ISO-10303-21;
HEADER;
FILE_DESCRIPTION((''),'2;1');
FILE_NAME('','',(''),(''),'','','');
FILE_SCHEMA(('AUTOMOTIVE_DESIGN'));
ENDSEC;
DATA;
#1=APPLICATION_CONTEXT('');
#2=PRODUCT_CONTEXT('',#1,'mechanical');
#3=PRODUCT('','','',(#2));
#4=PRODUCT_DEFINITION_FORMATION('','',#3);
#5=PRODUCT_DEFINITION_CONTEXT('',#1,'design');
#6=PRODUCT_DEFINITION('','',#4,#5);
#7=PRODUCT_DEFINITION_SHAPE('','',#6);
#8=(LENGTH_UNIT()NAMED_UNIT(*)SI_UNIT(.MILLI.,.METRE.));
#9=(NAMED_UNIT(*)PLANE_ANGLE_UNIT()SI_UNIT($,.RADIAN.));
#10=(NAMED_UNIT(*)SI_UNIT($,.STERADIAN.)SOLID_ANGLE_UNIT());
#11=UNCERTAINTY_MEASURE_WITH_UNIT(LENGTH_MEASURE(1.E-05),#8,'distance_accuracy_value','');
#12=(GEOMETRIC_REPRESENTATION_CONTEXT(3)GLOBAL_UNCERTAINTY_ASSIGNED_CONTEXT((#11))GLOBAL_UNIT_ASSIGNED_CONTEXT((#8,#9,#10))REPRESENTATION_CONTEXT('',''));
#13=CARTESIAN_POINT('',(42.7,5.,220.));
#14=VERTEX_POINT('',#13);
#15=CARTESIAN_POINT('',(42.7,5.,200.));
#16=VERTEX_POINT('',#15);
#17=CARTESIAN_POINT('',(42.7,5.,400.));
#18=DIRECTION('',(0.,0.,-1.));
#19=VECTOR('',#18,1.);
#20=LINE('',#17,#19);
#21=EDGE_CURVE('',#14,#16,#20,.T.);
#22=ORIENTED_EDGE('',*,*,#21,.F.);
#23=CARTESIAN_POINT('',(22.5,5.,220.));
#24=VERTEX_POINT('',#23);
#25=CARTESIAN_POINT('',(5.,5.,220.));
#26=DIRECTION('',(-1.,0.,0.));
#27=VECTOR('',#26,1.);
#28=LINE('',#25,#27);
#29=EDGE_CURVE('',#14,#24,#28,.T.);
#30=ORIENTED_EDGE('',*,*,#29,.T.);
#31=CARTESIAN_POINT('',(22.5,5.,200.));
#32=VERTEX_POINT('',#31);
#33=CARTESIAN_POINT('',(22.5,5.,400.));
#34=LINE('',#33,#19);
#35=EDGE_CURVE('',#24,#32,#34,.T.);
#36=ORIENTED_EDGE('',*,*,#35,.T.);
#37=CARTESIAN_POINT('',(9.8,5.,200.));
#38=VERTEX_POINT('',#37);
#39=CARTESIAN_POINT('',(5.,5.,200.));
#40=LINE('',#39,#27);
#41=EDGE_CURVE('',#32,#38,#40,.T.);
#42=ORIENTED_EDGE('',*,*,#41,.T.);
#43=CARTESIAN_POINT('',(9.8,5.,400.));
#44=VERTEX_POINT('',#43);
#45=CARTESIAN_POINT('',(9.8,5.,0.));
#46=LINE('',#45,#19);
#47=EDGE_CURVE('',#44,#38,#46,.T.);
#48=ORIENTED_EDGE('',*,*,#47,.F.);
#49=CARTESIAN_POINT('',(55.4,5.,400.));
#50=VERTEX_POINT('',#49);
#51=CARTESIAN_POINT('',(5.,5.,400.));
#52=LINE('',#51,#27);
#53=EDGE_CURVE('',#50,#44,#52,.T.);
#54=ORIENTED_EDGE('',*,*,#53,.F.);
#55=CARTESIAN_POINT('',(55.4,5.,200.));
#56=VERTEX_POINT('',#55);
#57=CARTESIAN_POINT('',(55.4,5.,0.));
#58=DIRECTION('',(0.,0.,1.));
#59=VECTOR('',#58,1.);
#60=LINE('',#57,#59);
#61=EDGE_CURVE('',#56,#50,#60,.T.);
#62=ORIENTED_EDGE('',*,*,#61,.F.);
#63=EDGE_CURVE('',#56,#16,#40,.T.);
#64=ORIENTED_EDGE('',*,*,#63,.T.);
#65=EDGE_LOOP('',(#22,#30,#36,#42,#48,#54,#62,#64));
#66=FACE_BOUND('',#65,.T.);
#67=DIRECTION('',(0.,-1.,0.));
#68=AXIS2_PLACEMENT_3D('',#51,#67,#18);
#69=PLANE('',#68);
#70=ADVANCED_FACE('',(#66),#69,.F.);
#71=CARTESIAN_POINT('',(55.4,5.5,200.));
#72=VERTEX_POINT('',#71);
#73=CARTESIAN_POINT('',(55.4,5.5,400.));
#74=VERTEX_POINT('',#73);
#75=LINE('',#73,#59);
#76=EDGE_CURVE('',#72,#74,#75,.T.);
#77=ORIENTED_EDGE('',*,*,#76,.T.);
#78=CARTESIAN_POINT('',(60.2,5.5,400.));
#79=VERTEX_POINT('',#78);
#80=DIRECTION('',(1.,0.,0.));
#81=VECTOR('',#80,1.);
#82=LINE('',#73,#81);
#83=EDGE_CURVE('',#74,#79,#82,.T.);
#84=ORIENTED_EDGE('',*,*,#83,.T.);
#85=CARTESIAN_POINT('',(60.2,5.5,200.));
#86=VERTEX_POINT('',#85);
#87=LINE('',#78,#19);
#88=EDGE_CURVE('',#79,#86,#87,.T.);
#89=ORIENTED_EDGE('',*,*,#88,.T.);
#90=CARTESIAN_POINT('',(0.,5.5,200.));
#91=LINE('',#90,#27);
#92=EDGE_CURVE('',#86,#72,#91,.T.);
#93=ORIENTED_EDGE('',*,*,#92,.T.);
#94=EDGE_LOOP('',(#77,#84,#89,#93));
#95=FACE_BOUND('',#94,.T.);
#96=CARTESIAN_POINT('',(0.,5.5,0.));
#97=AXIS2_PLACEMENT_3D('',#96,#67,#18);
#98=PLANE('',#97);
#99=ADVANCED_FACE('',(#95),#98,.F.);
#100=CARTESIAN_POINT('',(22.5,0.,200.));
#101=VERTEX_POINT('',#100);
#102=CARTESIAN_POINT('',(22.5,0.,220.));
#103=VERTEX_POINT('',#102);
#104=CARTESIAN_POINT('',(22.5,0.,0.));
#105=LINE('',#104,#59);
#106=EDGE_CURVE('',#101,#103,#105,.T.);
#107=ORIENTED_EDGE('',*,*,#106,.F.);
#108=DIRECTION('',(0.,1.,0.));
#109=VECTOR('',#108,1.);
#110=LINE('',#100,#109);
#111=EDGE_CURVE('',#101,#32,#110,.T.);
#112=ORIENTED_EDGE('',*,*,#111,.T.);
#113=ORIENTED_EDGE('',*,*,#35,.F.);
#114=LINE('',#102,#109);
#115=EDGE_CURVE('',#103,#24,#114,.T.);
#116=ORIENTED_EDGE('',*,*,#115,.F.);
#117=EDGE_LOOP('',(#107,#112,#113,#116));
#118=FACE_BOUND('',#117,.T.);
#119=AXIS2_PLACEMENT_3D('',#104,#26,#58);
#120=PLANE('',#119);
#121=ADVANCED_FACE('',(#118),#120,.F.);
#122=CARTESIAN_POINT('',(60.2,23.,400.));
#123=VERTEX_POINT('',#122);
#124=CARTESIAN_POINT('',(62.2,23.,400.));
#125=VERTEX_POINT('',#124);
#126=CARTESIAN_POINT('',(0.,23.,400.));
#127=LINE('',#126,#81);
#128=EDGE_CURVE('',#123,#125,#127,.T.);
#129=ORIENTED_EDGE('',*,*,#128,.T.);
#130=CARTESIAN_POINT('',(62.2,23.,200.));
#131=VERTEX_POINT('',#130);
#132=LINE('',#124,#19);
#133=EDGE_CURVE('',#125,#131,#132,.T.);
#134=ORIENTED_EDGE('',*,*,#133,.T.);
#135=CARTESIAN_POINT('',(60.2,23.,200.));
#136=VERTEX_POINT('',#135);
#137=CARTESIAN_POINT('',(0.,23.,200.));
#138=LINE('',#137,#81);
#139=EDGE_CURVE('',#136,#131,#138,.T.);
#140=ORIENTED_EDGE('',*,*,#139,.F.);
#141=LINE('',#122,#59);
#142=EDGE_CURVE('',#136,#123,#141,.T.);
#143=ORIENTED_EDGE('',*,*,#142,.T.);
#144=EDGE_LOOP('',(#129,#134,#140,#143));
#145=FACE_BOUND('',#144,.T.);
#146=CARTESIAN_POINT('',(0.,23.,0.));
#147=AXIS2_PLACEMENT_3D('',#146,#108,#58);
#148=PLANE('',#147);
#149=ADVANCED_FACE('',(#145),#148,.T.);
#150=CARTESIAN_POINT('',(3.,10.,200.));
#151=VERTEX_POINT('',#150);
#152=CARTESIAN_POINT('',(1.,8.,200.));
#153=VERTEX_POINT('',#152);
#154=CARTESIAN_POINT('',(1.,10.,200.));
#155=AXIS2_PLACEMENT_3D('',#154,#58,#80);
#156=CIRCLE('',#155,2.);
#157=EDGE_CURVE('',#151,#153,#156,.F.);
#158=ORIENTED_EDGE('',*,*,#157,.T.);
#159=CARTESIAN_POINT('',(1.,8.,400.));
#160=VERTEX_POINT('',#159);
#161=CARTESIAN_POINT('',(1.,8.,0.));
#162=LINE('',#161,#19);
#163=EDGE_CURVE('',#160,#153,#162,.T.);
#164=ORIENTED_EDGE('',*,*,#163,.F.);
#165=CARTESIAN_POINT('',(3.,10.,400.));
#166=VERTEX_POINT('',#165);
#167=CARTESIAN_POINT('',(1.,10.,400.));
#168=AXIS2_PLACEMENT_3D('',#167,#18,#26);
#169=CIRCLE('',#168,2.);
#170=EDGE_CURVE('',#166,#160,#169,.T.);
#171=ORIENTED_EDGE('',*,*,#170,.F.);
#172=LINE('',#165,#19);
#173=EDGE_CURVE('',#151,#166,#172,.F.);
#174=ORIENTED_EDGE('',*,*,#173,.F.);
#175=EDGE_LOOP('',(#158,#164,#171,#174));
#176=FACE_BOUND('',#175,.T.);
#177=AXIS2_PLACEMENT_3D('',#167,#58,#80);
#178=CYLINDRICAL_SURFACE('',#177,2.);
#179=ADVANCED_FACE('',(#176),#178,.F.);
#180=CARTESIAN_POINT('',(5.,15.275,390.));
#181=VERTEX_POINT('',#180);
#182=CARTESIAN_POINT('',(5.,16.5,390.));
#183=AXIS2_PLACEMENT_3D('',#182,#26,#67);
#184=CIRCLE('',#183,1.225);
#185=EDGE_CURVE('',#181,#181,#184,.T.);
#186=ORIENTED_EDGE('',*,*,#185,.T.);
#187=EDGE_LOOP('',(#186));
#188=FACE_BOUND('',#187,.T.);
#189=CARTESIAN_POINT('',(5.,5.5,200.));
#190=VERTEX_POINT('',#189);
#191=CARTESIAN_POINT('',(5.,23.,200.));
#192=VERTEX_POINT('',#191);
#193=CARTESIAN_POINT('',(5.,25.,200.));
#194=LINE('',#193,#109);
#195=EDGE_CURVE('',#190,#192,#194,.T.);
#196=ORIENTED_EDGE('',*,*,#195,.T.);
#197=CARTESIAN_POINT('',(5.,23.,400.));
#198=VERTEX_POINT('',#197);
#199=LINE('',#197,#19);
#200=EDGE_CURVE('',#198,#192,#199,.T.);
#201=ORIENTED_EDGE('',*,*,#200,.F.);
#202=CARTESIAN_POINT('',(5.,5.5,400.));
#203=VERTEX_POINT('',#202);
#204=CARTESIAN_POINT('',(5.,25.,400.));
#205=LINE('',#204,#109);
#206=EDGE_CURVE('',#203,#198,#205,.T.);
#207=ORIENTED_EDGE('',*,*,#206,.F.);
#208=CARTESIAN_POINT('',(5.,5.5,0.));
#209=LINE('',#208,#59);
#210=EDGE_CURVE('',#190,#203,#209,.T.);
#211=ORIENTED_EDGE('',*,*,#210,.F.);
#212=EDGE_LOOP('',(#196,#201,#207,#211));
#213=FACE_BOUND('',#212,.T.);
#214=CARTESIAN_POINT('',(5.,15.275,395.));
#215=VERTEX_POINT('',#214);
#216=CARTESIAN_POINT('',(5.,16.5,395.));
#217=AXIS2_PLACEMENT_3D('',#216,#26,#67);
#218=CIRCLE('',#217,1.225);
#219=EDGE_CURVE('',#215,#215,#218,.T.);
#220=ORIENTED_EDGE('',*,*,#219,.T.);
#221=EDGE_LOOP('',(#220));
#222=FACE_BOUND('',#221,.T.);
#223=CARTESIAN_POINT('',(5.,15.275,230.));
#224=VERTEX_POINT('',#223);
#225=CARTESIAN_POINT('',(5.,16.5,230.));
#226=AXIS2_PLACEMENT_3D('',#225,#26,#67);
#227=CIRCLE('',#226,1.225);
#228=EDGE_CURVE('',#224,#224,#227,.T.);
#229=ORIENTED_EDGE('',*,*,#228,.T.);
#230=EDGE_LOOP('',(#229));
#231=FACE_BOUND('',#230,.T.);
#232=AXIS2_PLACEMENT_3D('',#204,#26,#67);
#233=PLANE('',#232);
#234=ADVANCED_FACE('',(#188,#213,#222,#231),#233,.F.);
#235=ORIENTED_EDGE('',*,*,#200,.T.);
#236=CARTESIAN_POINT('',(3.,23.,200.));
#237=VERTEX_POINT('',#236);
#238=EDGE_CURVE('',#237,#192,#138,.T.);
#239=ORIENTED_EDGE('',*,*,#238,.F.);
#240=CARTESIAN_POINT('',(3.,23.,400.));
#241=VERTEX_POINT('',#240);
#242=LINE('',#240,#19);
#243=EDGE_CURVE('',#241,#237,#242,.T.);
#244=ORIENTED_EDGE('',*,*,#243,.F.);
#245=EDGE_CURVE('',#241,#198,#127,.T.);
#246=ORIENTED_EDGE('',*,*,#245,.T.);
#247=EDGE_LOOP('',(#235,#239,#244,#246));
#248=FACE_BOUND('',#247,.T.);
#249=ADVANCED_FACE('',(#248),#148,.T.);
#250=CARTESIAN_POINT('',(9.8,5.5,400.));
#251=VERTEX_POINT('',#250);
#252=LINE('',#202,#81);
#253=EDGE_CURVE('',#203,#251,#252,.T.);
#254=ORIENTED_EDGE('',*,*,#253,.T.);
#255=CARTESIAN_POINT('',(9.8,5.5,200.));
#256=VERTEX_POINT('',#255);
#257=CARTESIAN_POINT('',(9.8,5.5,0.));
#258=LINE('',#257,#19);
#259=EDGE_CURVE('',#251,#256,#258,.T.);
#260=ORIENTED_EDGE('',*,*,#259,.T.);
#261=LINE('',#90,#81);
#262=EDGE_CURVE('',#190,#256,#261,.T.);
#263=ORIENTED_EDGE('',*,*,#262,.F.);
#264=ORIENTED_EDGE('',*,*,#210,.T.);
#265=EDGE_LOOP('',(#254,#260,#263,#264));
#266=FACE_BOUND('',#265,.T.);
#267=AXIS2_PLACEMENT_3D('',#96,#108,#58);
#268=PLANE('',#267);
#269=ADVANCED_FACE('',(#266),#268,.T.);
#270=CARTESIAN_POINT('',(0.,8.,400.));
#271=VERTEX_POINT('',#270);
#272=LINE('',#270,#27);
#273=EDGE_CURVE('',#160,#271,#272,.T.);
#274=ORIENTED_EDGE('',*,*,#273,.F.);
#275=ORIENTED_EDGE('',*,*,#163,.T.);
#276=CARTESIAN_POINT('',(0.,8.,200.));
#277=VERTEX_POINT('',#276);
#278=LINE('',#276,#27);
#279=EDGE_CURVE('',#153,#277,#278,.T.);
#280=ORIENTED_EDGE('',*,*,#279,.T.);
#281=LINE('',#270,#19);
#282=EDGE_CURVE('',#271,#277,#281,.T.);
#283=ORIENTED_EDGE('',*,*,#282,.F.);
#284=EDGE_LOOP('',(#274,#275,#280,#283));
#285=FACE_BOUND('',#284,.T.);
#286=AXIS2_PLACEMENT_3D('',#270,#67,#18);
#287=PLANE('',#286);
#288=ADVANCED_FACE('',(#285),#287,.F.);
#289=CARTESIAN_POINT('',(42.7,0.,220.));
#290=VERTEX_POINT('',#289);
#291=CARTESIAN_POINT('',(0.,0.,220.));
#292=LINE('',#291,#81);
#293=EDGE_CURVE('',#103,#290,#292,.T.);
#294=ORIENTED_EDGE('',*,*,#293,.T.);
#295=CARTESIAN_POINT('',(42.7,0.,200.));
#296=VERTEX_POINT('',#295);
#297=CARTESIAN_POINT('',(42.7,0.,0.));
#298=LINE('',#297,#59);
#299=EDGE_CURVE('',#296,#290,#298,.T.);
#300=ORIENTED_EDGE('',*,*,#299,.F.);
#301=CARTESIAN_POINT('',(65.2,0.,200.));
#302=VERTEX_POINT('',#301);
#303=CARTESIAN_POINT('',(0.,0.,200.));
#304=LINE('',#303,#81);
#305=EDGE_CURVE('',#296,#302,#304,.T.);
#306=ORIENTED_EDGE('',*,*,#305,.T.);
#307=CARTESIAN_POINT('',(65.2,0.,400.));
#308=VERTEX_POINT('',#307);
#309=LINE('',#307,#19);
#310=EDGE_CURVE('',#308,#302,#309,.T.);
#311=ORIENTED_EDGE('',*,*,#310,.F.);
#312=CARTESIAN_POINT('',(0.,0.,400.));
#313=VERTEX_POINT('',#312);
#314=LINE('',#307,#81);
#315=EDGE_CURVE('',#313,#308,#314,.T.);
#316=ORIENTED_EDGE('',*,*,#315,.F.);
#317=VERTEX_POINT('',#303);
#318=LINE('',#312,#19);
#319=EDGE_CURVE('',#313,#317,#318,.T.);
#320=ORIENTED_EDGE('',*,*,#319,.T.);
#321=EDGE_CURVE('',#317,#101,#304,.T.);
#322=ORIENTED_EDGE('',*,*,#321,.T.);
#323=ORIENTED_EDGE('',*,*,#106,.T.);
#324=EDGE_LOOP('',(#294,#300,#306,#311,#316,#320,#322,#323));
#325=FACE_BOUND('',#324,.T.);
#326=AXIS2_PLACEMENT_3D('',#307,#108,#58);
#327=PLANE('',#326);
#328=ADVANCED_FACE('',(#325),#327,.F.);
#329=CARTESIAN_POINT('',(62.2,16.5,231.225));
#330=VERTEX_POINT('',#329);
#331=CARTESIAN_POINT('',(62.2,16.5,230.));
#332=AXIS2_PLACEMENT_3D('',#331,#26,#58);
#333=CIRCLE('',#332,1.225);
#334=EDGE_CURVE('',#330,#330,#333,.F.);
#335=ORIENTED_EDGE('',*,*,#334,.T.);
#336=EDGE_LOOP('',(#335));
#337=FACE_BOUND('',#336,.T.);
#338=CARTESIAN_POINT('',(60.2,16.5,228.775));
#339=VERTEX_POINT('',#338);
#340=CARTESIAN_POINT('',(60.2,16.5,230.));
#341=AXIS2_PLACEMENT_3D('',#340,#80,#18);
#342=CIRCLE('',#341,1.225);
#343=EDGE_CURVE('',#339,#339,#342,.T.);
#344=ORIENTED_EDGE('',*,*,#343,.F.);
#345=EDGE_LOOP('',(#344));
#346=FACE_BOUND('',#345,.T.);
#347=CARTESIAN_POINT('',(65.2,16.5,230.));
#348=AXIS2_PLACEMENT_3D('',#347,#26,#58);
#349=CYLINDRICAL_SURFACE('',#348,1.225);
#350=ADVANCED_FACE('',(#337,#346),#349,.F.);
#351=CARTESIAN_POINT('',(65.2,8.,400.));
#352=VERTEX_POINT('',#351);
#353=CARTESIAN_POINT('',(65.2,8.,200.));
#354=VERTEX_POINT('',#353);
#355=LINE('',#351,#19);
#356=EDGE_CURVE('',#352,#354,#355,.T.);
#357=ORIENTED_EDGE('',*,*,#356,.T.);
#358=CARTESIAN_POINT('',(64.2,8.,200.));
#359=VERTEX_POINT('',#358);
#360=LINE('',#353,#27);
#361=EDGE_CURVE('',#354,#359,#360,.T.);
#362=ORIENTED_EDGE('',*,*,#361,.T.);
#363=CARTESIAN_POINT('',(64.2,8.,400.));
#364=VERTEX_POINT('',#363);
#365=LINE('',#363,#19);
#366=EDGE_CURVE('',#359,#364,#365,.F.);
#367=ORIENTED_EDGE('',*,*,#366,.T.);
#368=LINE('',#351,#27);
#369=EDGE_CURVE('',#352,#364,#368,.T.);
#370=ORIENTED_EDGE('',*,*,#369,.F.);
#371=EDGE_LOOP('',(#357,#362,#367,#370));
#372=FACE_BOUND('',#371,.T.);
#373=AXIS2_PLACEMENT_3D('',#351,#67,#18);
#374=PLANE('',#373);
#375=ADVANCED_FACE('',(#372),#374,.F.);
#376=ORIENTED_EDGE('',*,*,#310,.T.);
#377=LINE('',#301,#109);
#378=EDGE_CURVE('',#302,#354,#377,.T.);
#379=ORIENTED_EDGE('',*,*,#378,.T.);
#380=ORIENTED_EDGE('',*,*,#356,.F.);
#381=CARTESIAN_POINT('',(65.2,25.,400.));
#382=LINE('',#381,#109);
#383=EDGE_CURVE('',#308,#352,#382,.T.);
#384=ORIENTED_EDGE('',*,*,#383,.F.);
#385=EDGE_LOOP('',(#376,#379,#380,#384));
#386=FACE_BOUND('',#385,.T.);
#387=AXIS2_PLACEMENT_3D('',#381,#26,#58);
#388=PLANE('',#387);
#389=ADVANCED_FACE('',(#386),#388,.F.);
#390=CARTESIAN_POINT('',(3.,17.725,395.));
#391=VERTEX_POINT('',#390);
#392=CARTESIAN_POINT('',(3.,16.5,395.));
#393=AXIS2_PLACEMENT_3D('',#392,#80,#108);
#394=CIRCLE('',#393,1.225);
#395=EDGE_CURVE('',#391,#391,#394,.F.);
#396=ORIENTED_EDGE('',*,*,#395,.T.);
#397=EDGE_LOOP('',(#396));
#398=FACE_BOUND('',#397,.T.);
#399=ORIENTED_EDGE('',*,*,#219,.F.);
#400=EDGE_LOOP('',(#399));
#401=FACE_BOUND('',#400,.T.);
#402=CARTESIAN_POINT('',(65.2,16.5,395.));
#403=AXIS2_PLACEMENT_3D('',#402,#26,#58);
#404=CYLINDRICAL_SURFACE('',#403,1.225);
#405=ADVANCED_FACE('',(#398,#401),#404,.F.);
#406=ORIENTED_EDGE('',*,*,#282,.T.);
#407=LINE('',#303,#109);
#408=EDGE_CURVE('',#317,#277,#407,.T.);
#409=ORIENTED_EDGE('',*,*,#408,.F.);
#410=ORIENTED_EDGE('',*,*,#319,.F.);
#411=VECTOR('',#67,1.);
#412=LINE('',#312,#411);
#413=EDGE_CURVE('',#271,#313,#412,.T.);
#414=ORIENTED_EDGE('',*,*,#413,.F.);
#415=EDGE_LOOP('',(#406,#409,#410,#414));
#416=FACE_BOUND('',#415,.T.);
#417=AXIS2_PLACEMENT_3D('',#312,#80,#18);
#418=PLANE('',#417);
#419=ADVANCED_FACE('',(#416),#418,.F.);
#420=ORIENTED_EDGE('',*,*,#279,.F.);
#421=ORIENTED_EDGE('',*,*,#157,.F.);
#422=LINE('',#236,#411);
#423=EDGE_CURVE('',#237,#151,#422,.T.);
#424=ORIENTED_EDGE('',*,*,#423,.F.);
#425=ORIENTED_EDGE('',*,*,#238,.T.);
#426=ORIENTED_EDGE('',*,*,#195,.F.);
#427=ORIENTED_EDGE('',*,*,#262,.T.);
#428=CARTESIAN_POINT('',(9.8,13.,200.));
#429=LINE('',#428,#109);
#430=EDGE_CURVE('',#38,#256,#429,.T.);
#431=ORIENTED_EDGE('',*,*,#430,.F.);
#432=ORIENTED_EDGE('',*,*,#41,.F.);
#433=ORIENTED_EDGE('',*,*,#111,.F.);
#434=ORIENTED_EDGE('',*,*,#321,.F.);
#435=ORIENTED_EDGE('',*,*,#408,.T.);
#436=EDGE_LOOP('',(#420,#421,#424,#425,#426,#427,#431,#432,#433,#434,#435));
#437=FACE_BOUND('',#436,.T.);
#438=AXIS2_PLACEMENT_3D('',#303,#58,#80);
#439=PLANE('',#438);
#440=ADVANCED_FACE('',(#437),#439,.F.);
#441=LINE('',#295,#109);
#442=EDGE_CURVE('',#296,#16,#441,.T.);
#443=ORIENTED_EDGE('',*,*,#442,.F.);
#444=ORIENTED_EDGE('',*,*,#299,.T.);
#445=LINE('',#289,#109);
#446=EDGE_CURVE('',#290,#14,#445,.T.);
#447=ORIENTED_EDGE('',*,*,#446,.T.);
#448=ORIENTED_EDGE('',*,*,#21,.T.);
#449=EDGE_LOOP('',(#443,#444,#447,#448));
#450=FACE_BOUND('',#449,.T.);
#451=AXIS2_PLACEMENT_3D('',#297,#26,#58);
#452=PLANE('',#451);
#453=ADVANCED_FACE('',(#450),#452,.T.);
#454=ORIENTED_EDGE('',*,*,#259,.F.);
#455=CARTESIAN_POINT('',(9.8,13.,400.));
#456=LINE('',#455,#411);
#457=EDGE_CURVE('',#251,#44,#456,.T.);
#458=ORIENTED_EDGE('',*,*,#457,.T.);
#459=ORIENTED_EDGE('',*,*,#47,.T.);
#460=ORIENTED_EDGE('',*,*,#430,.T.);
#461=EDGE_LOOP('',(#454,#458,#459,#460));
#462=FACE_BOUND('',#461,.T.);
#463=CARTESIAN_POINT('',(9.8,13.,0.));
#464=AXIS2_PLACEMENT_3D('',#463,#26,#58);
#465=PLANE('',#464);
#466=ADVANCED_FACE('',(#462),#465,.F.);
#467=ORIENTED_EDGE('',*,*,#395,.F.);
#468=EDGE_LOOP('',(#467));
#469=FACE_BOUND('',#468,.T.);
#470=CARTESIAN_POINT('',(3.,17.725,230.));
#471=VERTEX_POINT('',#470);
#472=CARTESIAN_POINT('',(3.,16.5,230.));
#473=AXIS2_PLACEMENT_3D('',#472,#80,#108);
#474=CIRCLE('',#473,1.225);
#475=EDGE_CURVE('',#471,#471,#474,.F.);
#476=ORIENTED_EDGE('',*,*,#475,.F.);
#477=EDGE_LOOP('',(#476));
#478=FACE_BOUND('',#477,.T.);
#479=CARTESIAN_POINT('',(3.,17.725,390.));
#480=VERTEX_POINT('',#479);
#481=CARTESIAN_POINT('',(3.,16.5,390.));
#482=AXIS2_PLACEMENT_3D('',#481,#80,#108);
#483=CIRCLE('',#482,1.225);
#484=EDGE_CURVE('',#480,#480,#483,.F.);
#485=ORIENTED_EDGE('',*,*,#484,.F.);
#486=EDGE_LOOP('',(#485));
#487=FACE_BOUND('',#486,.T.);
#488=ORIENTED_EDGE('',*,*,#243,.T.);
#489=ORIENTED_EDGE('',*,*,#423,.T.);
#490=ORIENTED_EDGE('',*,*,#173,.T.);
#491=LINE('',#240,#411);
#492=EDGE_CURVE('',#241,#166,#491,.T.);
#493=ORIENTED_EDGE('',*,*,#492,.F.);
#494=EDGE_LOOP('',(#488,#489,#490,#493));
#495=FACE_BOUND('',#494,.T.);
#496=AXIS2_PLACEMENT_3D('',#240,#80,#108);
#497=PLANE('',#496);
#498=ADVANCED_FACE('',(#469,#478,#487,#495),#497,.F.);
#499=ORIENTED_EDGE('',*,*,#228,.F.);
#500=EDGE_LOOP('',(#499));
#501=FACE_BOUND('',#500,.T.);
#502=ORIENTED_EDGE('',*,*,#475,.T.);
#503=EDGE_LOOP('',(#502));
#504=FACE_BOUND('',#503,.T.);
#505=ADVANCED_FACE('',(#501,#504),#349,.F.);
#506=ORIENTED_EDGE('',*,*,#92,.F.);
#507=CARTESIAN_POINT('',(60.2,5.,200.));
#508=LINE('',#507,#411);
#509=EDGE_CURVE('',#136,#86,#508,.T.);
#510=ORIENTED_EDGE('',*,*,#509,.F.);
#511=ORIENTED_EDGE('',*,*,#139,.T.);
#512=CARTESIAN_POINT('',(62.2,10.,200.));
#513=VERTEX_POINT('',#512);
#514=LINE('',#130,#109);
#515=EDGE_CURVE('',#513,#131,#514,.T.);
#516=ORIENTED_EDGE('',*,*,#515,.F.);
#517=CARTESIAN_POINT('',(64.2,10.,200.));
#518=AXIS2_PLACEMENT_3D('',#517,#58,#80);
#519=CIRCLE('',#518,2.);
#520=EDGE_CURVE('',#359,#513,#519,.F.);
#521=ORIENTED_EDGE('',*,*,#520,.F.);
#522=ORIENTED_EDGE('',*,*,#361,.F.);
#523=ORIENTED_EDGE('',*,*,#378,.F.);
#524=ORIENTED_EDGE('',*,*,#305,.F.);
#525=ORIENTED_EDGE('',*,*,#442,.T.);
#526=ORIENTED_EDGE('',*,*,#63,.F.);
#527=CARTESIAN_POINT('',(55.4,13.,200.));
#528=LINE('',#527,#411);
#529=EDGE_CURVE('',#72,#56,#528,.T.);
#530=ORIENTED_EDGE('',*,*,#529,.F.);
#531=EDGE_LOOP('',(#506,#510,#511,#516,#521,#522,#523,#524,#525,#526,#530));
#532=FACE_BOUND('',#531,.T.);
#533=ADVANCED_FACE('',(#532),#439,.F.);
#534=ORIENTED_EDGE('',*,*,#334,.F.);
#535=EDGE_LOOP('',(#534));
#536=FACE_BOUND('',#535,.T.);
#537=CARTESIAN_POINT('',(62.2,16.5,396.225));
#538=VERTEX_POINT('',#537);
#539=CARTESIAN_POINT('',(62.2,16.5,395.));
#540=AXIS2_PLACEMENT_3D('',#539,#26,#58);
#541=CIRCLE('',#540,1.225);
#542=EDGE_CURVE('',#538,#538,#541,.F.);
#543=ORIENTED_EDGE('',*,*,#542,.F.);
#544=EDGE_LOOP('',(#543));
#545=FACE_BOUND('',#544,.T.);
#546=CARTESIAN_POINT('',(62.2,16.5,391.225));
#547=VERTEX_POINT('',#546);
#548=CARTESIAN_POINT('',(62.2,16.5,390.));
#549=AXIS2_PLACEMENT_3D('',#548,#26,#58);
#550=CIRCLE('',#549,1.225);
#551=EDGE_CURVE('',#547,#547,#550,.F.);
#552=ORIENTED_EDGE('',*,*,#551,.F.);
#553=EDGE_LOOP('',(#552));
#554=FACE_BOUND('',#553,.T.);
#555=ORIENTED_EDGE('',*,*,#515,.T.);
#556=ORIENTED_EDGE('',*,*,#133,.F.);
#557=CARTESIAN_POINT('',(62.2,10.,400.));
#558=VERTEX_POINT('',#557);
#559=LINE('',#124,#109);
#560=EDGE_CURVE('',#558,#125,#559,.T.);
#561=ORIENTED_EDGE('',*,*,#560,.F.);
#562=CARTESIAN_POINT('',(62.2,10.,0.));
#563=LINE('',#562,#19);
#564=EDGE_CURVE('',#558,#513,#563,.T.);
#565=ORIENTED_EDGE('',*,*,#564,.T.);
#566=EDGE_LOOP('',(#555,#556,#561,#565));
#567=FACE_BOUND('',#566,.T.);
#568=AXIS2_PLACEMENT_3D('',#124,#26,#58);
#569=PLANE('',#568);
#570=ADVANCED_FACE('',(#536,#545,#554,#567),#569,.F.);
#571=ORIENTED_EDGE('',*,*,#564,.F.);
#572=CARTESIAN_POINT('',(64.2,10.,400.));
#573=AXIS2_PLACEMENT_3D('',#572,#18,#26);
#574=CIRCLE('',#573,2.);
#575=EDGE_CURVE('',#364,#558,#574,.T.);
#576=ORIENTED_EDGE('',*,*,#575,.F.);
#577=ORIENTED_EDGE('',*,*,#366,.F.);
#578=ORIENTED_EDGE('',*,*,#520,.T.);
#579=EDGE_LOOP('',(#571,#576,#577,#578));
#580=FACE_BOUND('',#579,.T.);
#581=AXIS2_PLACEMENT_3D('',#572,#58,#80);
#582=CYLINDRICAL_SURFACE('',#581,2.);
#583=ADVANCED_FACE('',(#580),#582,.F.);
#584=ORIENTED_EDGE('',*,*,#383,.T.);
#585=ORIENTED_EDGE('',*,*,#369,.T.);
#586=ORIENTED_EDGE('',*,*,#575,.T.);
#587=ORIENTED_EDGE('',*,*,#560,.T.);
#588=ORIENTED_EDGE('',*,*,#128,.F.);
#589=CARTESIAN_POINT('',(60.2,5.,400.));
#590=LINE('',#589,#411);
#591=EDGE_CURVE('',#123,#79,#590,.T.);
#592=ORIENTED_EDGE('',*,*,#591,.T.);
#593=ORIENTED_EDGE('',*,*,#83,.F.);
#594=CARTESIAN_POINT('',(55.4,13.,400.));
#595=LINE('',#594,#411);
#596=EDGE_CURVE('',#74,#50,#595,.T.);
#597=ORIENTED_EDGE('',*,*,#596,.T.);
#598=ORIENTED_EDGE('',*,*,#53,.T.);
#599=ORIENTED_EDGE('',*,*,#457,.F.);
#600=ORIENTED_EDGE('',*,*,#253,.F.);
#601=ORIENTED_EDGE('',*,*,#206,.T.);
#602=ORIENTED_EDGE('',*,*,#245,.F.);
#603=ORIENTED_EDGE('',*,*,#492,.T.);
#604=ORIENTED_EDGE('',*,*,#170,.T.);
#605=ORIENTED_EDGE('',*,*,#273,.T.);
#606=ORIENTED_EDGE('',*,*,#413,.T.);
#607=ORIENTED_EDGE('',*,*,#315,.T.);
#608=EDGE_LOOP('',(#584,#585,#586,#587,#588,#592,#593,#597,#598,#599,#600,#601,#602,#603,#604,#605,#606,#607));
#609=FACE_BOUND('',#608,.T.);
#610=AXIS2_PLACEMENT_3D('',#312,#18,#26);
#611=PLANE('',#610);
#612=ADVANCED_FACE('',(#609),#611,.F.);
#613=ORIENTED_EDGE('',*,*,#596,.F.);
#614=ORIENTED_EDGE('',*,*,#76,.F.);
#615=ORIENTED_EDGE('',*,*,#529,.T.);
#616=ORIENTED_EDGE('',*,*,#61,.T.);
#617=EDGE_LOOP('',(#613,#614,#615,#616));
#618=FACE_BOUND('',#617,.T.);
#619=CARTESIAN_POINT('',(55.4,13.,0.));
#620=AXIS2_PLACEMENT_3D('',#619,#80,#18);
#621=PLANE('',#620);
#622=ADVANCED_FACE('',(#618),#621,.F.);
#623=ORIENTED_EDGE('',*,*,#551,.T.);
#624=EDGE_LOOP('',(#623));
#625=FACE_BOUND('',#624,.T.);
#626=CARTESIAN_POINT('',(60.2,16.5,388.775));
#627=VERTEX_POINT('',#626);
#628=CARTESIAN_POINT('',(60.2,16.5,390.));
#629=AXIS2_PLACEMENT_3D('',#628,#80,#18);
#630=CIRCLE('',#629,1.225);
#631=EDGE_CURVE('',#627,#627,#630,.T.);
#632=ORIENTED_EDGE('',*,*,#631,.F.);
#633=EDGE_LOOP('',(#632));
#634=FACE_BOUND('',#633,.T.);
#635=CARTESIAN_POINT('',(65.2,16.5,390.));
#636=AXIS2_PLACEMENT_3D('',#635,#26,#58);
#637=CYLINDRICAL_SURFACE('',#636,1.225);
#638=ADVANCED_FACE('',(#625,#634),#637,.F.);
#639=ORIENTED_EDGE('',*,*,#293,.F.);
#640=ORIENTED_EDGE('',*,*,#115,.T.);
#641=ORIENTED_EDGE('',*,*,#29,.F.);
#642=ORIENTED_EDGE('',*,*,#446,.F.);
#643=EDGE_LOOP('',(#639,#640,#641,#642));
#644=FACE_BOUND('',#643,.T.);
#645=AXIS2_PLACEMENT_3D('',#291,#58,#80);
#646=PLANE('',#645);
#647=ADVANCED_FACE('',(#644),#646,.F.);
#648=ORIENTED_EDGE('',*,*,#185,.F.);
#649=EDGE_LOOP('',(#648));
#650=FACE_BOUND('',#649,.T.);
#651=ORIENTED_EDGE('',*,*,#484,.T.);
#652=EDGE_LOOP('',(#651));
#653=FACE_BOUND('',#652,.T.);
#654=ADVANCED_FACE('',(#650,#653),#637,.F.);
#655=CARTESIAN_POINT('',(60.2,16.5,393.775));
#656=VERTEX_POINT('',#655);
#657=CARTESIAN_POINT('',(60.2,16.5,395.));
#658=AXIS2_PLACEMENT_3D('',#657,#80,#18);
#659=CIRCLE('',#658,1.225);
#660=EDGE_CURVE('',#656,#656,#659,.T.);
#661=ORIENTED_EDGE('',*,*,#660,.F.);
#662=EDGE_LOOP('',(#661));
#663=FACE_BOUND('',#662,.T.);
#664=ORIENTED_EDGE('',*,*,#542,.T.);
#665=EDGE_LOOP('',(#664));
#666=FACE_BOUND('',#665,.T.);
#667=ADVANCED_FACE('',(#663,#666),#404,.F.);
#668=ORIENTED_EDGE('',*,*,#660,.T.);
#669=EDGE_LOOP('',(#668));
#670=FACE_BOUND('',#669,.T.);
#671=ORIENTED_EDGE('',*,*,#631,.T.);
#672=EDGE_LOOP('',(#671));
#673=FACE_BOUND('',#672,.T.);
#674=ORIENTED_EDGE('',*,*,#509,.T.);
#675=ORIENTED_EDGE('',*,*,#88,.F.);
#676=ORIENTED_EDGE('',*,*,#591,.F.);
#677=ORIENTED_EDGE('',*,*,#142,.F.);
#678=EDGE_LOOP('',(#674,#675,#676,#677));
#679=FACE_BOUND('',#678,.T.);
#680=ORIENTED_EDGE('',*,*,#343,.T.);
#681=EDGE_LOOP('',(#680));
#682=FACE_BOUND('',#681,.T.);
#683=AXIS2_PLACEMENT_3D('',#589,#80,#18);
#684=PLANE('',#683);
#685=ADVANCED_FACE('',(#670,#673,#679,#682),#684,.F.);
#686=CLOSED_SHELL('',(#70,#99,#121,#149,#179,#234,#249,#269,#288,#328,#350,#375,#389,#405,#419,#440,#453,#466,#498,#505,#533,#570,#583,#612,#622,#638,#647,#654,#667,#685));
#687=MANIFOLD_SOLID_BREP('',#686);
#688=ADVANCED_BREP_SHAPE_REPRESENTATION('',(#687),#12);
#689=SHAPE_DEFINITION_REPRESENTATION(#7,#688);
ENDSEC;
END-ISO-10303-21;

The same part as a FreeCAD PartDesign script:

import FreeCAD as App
import Part
import Sketcher
from FreeCAD import Vector


def edges_at(feature, points):
    """Names of the edges that pass closest to the given points."""
    edges = feature.Shape.Edges
    near = lambda p: min(range(len(edges)), key=lambda i: edges[i].distToShape(Part.Vertex(*p))[0])
    return sorted({f"Edge{near(p) + 1}" for p in points})


def add_polygon(sketch, points):
    """Adds a closed chain of lines whose ends are joined by coincident constraints."""
    first, n = sketch.GeometryCount, len(points)
    for a, b in zip(points, points[1:] + points[:1]):
        sketch.addGeometry(Part.LineSegment(App.Vector(*a, 0), App.Vector(*b, 0)), False)
    for i in range(n):
        sketch.addConstraint(Sketcher.Constraint("Coincident", first + i, 2, first + (i + 1) % n, 1))

doc = App.newDocument("Part")
params = doc.addObject("Spreadsheet::Sheet", "Params")
for row, (alias, value) in enumerate([
    ("sketch1_width", "5 mm"),
    ("sketch1_height", "25 mm"),
    ("sketch1_height2", "20 mm"),
    ("sketch1_width2", "65.2 mm"),
    ("pad1_length", "400 mm"),
    ("sketch2_diameter", "4.2 mm"),
    ("pocket1_length", "10 mm"),
    ("pocket2_length", "2 mm"),
    ("sketch4_height", "400 mm"),
    ("sketch4_width", "4.8 mm"),
    ("pad2_length", "8 mm"),
    ("sketch5_diameter", "2.4 mm"),
    ("sketch6_diameter", "2.45 mm"),
    ("sketch7_height", "400 mm"),
    ("sketch7_width", "4.8 mm"),
    ("pocket5_length", "5 mm"),
    ("sketch8_diameter", "4.2 mm"),
    ("pad3_length", "15 mm"),
    ("sketch9_width", "6.18 mm"),
    ("sketch9_height", "37.25 mm"),
    ("pad4_length", "10 mm"),
    ("sketch10_height", "22.25 mm"),
    ("sketch10_height2", "13.45 mm"),
    ("pad5_length", "6.18 mm"),
    ("sketch11_diameter", "2.1 mm"),
    ("pocket6_length", "10 mm"),
    ("fillet_radius", "2 mm"),
    ("sketch12_height", "400 mm"),
    ("sketch12_width", "4.8 mm"),
    ("pocket7_length", "2.5 mm"),
    ("sketch13_diameter", "2.32 mm"),
    ("sketch14_diameter", "2.32 mm"),
    ("sketch15_diameter", "2.45 mm"),
    ("sketch16_diameter", "2.45 mm"),
    ("sketch17_width", "3 mm"),
    ("sketch17_height", "15 mm"),
    ("fillet2_radius", "2 mm"),
    ("fillet3_radius", "2 mm"),
    ("sketch18_height", "200 mm"),
    ("sketch18_height2", "20 mm"),
    ("sketch18_width", "22.5 mm"),
    ("sketch18_width2", "20.2 mm"),
], start=1):
    params.set(f"A{row}", alias)
    params.set(f"B{row}", "=" + value)
    params.setAlias(f"B{row}", alias)

body = doc.addObject("PartDesign::Body", "Body")

# Sketch on XY plane
sketch1 = doc.addObject("Sketcher::SketchObject", "Sketch")
body.addObject(sketch1)
sketch1.AttachmentSupport = (doc.XY_Plane, [""])
sketch1.MapMode = "FlatFace"
add_polygon(sketch1, [(0, 25), (0, 0), (65, 0), (65, 25), (60, 25), (60, 5), (5, 5), (5, 25)])  # lines 0-7
sketch1.addConstraint([
    Sketcher.Constraint("Vertical", 0),
    Sketcher.Constraint("Horizontal", 1),
    Sketcher.Constraint("Vertical", 2),
    Sketcher.Constraint("Horizontal", 3),
    Sketcher.Constraint("Vertical", 4),
    Sketcher.Constraint("Horizontal", 5),
    Sketcher.Constraint("Vertical", 6),
    Sketcher.Constraint("Horizontal", 7),
    Sketcher.Constraint("Coincident", 0, 2, -1, 1),
    Sketcher.Constraint("Horizontal", 3, 2, 6, 2),
    Sketcher.Constraint("Equal", 3, 7),
    Sketcher.Constraint("DistanceX", 3, 2, 3, 1, 5.0),
    Sketcher.Constraint("DistanceY", 0, 2, 0, 1, 25.0),
    Sketcher.Constraint("DistanceY", 4, 2, 4, 1, 20.0),
    Sketcher.Constraint("DistanceX", 1, 1, 1, 2, 65.2),
])
sketch1.setExpression("Constraints[19]", "Params.sketch1_width")
sketch1.setExpression("Constraints[20]", "Params.sketch1_height")
sketch1.setExpression("Constraints[21]", "Params.sketch1_height2")
sketch1.setExpression("Constraints[22]", "Params.sketch1_width2")
pad1 = doc.addObject("PartDesign::Pad", "Pad")
body.addObject(pad1)
pad1.Profile = sketch1
pad1.setExpression("Length", "Params.pad1_length")

# Sketch on XZ plane
sketch2 = doc.addObject("Sketcher::SketchObject", "Sketch001")
body.addObject(sketch2)
sketch2.AttachmentSupport = (doc.XZ_Plane, [""])
sketch2.MapMode = "FlatFace"
sketch2.AttachmentOffset = App.Placement(Vector(0, 0, -5), App.Rotation())
sketch2.addGeometry([
    Part.Circle(Vector(32.6, 67.2, 0), Vector(0, 0, 1), 2.1),
    Part.Circle(Vector(32.6, 96.9, 0), Vector(0, 0, 1), 2.1),
], False)
sketch2.addConstraint([
    Sketcher.Constraint("Equal", 0, 1),
    Sketcher.Constraint("Vertical", 0, 3, 1, 3),
    Sketcher.Constraint("Diameter", 0, 4.2),
    Sketcher.Constraint("DistanceX", -1, 1, 0, 3, 32.6),
    Sketcher.Constraint("DistanceY", -1, 1, 0, 3, 67.17),
    Sketcher.Constraint("DistanceY", -1, 1, 1, 3, 96.92),
])
sketch2.setExpression("Constraints[2]", "Params.sketch2_diameter")
pocket1 = doc.addObject("PartDesign::Pocket", "Pocket")
body.addObject(pocket1)
pocket1.Profile = sketch2
pocket1.setExpression("Length", "Params.pocket1_length")
pocket1.Reversed = True

# Sketch on XZ plane
sketch3 = doc.addObject("Sketcher::SketchObject", "Sketch002")
body.addObject(sketch3)
sketch3.AttachmentSupport = (doc.XZ_Plane, [""])
sketch3.MapMode = "FlatFace"
sketch3.AttachmentOffset = App.Placement(Vector(0, 0, -25), App.Rotation())
add_polygon(sketch3, [(-35, -47), (-35, 451), (123, 451), (123, -47)])  # lines 0-3
sketch3.addConstraint([
    Sketcher.Constraint("Vertical", 0),
    Sketcher.Constraint("Horizontal", 1),
    Sketcher.Constraint("Vertical", 2),
    Sketcher.Constraint("Horizontal", 3),
    Sketcher.Constraint("DistanceY", 0, 1, 0, 2, 497.98789),
    Sketcher.Constraint("DistanceX", 1, 1, 1, 2, 158.039132),
    Sketcher.Constraint("DistanceX", 0, 2, -1, 1, 34.895879),
    Sketcher.Constraint("DistanceY", -1, 1, 0, 2, 450.640186),
])
pocket2 = doc.addObject("PartDesign::Pocket", "Pocket001")
body.addObject(pocket2)
pocket2.Profile = sketch3
pocket2.setExpression("Length", "Params.pocket2_length")
pocket2.Reversed = True

# Sketch on XZ plane
sketch4 = doc.addObject("Sketcher::SketchObject", "Sketch003")
body.addObject(sketch4)
sketch4.AttachmentSupport = (doc.XZ_Plane, [""])
sketch4.MapMode = "FlatFace"
sketch4.AttachmentOffset = App.Placement(Vector(0, 0, -5), App.Rotation())
add_polygon(sketch4, [(5, 0), (5, 400), (9.8, 400), (9.8, 0)])  # lines 0-3
add_polygon(sketch4, [(55.4, 0), (55.4, 400), (60.2, 400), (60.2, 0)])  # lines 4-7
sketch4.addConstraint([
    Sketcher.Constraint("Vertical", 0),
    Sketcher.Constraint("Horizontal", 1),
    Sketcher.Constraint("Vertical", 2),
    Sketcher.Constraint("Horizontal", 3),
    Sketcher.Constraint("Vertical", 4),
    Sketcher.Constraint("Horizontal", 5),
    Sketcher.Constraint("Vertical", 6),
    Sketcher.Constraint("Horizontal", 7),
    Sketcher.Constraint("PointOnObject", 2, 2, -1),
    Sketcher.Constraint("PointOnObject", 6, 2, -1),
    Sketcher.Constraint("Horizontal", 1, 2, 4, 2),
    Sketcher.Constraint("Equal", 3, 5),
    Sketcher.Constraint("DistanceY", 0, 1, 0, 2, 400.0),
    Sketcher.Constraint("DistanceX", 1, 1, 1, 2, 4.8),
    Sketcher.Constraint("DistanceX", -1, 1, 0, 2, 5.0),
    Sketcher.Constraint("DistanceX", -1, 1, 4, 2, 55.4),
])
sketch4.setExpression("Constraints[20]", "Params.sketch4_height")
sketch4.setExpression("Constraints[21]", "Params.sketch4_width")
pad2 = doc.addObject("PartDesign::Pad", "Pad001")
body.addObject(pad2)
pad2.Profile = sketch4
pad2.setExpression("Length", "Params.pad2_length")
pad2.Reversed = True

# Sketch on YZ plane
sketch5 = doc.addObject("Sketcher::SketchObject", "Sketch004")
body.addObject(sketch5)
sketch5.AttachmentSupport = (doc.YZ_Plane, [""])
sketch5.MapMode = "FlatFace"
sketch5.AttachmentOffset = App.Placement(Vector(0, 0, 5), App.Rotation())
sketch5.addGeometry([
    Part.Circle(Vector(16.5, 395, 0), Vector(0, 0, 1), 1.2),
    Part.Circle(Vector(16.5, 390, 0), Vector(0, 0, 1), 1.2),
    Part.Circle(Vector(16.5, 10, 0), Vector(0, 0, 1), 1.2),
    Part.Circle(Vector(16.5, 5, 0), Vector(0, 0, 1), 1.2),
], False)
sketch5.addConstraint([
    Sketcher.Constraint("Equal", 0, 1),
    Sketcher.Constraint("Equal", 1, 2),
    Sketcher.Constraint("Equal", 2, 3),
    Sketcher.Constraint("Vertical", 0, 3, 1, 3),
    Sketcher.Constraint("Vertical", 1, 3, 2, 3),
    Sketcher.Constraint("Vertical", 2, 3, 3, 3),
    Sketcher.Constraint("Diameter", 0, 2.4),
    Sketcher.Constraint("DistanceY", -1, 1, 0, 3, 395.0),
    Sketcher.Constraint("DistanceY", -1, 1, 1, 3, 390.0),
    Sketcher.Constraint("DistanceY", -1, 1, 2, 3, 10.0),
    Sketcher.Constraint("DistanceY", -1, 1, 3, 3, 5.0),
    Sketcher.Constraint("DistanceX", -1, 1, 0, 3, 16.5),
])
sketch5.setExpression("Constraints[6]", "Params.sketch5_diameter")
pocket3 = doc.addObject("PartDesign::Pocket", "Pocket002")
body.addObject(pocket3)
pocket3.Profile = sketch5
pocket3.Type = "ThroughAll"

# Sketch on YZ plane
sketch6 = doc.addObject("Sketcher::SketchObject", "Sketch005")
body.addObject(sketch6)
sketch6.AttachmentSupport = (doc.YZ_Plane, [""])
sketch6.MapMode = "FlatFace"
sketch6.addGeometry([
    Part.Circle(Vector(16.5, 5, 0), Vector(0, 0, 1), 1.2),
    Part.Circle(Vector(16.5, 10, 0), Vector(0, 0, 1), 1.2),
    Part.Circle(Vector(16.5, 390, 0), Vector(0, 0, 1), 1.2),
    Part.Circle(Vector(16.5, 395, 0), Vector(0, 0, 1), 1.2),
], False)
sketch6.addConstraint([
    Sketcher.Constraint("Equal", 0, 1),
    Sketcher.Constraint("Equal", 1, 2),
    Sketcher.Constraint("Equal", 2, 3),
    Sketcher.Constraint("Vertical", 0, 3, 1, 3),
    Sketcher.Constraint("Vertical", 1, 3, 2, 3),
    Sketcher.Constraint("Vertical", 2, 3, 3, 3),
    Sketcher.Constraint("Diameter", 0, 2.45),
    Sketcher.Constraint("DistanceY", -1, 1, 0, 3, 5.0),
    Sketcher.Constraint("DistanceY", -1, 1, 1, 3, 10.0),
    Sketcher.Constraint("DistanceY", -1, 1, 2, 3, 390.0),
    Sketcher.Constraint("DistanceY", -1, 1, 3, 3, 395.0),
    Sketcher.Constraint("DistanceX", -1, 1, 0, 3, 16.5),
])
sketch6.setExpression("Constraints[6]", "Params.sketch6_diameter")
pocket4 = doc.addObject("PartDesign::Pocket", "Pocket003")
body.addObject(pocket4)
pocket4.Profile = sketch6
pocket4.Type = "ThroughAll"
pocket4.Reversed = True

# Sketch on XZ plane
sketch7 = doc.addObject("Sketcher::SketchObject", "Sketch006")
body.addObject(sketch7)
sketch7.AttachmentSupport = (doc.XZ_Plane, [""])
sketch7.MapMode = "FlatFace"
sketch7.AttachmentOffset = App.Placement(Vector(0, 0, -13), App.Rotation())
add_polygon(sketch7, [(5, 0), (5, 400), (9.8, 400), (9.8, 0)])  # lines 0-3
add_polygon(sketch7, [(55.4, 0), (55.4, 400), (60.2, 400), (60.2, 0)])  # lines 4-7
sketch7.addConstraint([
    Sketcher.Constraint("Vertical", 0),
    Sketcher.Constraint("Horizontal", 1),
    Sketcher.Constraint("Vertical", 2),
    Sketcher.Constraint("Horizontal", 3),
    Sketcher.Constraint("Vertical", 4),
    Sketcher.Constraint("Horizontal", 5),
    Sketcher.Constraint("Vertical", 6),
    Sketcher.Constraint("Horizontal", 7),
    Sketcher.Constraint("PointOnObject", 2, 2, -1),
    Sketcher.Constraint("PointOnObject", 6, 2, -1),
    Sketcher.Constraint("Horizontal", 1, 2, 4, 2),
    Sketcher.Constraint("Equal", 3, 5),
    Sketcher.Constraint("DistanceY", 0, 1, 0, 2, 400.0),
    Sketcher.Constraint("DistanceX", 1, 1, 1, 2, 4.8),
    Sketcher.Constraint("DistanceX", -1, 1, 0, 2, 5.0),
    Sketcher.Constraint("DistanceX", -1, 1, 4, 2, 55.4),
])
sketch7.setExpression("Constraints[20]", "Params.sketch7_height")
sketch7.setExpression("Constraints[21]", "Params.sketch7_width")
pocket5 = doc.addObject("PartDesign::Pocket", "Pocket004")
body.addObject(pocket5)
pocket5.Profile = sketch7
pocket5.setExpression("Length", "Params.pocket5_length")
pocket5.Reversed = True

# Sketch on XZ plane
sketch8 = doc.addObject("Sketcher::SketchObject", "Sketch007")
body.addObject(sketch8)
sketch8.AttachmentSupport = (doc.XZ_Plane, [""])
sketch8.MapMode = "FlatFace"
sketch8.AttachmentOffset = App.Placement(Vector(0, 0, -15), App.Rotation())
sketch8.addGeometry([
    Part.Circle(Vector(32.6, 96.9, 0), Vector(0, 0, 1), 2.1),
    Part.Circle(Vector(32.6, 67.2, 0), Vector(0, 0, 1), 2.1),
], False)
sketch8.addConstraint([
    Sketcher.Constraint("Equal", 0, 1),
    Sketcher.Constraint("Vertical", 0, 3, 1, 3),
    Sketcher.Constraint("Diameter", 0, 4.2),
    Sketcher.Constraint("DistanceX", -1, 1, 0, 3, 32.6),
    Sketcher.Constraint("DistanceY", -1, 1, 0, 3, 96.92),
    Sketcher.Constraint("DistanceY", -1, 1, 1, 3, 67.17),
])
sketch8.setExpression("Constraints[2]", "Params.sketch8_diameter")
pad3 = doc.addObject("PartDesign::Pad", "Pad002")
body.addObject(pad3)
pad3.Profile = sketch8
pad3.setExpression("Length", "Params.pad3_length")

# Sketch on XZ plane
sketch9 = doc.addObject("Sketcher::SketchObject", "Sketch008")
body.addObject(sketch9)
sketch9.AttachmentSupport = (doc.XZ_Plane, [""])
sketch9.MapMode = "FlatFace"
sketch9.AttachmentOffset = App.Placement(Vector(0, 0, -5), App.Rotation())
add_polygon(sketch9, [(30, 63), (30, 101), (36, 101), (36, 63)])  # lines 0-3
sketch9.addConstraint([
    Sketcher.Constraint("Vertical", 0),
    Sketcher.Constraint("Horizontal", 1),
    Sketcher.Constraint("Vertical", 2),
    Sketcher.Constraint("Horizontal", 3),
    Sketcher.Constraint("DistanceX", 1, 1, 1, 2, 6.18),
    Sketcher.Constraint("DistanceY", 0, 1, 0, 2, 37.25),
    Sketcher.Constraint("DistanceX", -1, 1, 0, 2, 29.51),
    Sketcher.Constraint("DistanceY", -1, 1, 0, 2, 100.67),
])
sketch9.setExpression("Constraints[8]", "Params.sketch9_width")
sketch9.setExpression("Constraints[9]", "Params.sketch9_height")
pad4 = doc.addObject("PartDesign::Pad", "Pad003")
body.addObject(pad4)
pad4.Profile = sketch9
pad4.setExpression("Length", "Params.pad4_length")
pad4.Reversed = True

# Sketch on YZ plane
sketch10 = doc.addObject("Sketcher::SketchObject", "Sketch009")
body.addObject(sketch10)
sketch10.AttachmentSupport = (doc.YZ_Plane, [""])
sketch10.MapMode = "FlatFace"
sketch10.AttachmentOffset = App.Placement(Vector(0, 0, 29.51), App.Rotation())
add_polygon(sketch10, [(19, 75), (15, 71), (15, 93), (19, 89)])  # lines 0-3
sketch10.addConstraint([
    Sketcher.Constraint("Vertical", 1),
    Sketcher.Constraint("Vertical", 3),
    Sketcher.Constraint("Perpendicular", 0, 2),
    Sketcher.Constraint("Equal", 0, 2),
    Sketcher.Constraint("DistanceX", -1, 1, 0, 2, 15.0),
    Sketcher.Constraint("DistanceY", 1, 1, 1, 2, 22.25),
    Sketcher.Constraint("DistanceY", 3, 2, 3, 1, 13.45),
    Sketcher.Constraint("DistanceY", -1, 1, 0, 2, 70.92),
])
sketch10.setExpression("Constraints[9]", "Params.sketch10_height")
sketch10.setExpression("Constraints[10]", "Params.sketch10_height2")
pad5 = doc.addObject("PartDesign::Pad", "Pad004")
body.addObject(pad5)
pad5.Profile = sketch10
pad5.setExpression("Length", "Params.pad5_length")

# Sketch on YZ plane
sketch11 = doc.addObject("Sketcher::SketchObject", "Sketch010")
body.addObject(sketch11)
sketch11.AttachmentSupport = (doc.YZ_Plane, [""])
sketch11.MapMode = "FlatFace"
sketch11.AttachmentOffset = App.Placement(Vector(0, 0, 29.51), App.Rotation())
sketch11.addGeometry([
    Part.Circle(Vector(16, 78.9, 0), Vector(0, 0, 1), 1.1),
    Part.Circle(Vector(16, 85.2, 0), Vector(0, 0, 1), 1.1),
], False)
sketch11.addConstraint([
    Sketcher.Constraint("Equal", 0, 1),
    Sketcher.Constraint("Vertical", 0, 3, 1, 3),
    Sketcher.Constraint("Diameter", 0, 2.1),
    Sketcher.Constraint("DistanceX", -1, 1, 0, 3, 16.0),
    Sketcher.Constraint("DistanceY", -1, 1, 0, 3, 78.87),
    Sketcher.Constraint("DistanceY", -1, 1, 1, 3, 85.22),
])
sketch11.setExpression("Constraints[2]", "Params.sketch11_diameter")
pocket6 = doc.addObject("PartDesign::Pocket", "Pocket005")
body.addObject(pocket6)
pocket6.Profile = sketch11
pocket6.setExpression("Length", "Params.pocket6_length")
pocket6.Reversed = True
doc.recompute()

fillet = doc.addObject("PartDesign::Fillet", "Fillet")
body.addObject(fillet)
fillet.Base = (pocket6, edges_at(pocket6, [
    (29.51, 5, 82.045),
    (29.51, 10, 63.42),
    (32.6, 5, 100.67),
    (29.51, 10, 100.67),
    (35.69, 5, 82.045),
    (35.69, 10, 100.67),
    (32.6, 5, 63.42),
    (35.69, 10, 63.42),
]))
fillet.setExpression("Radius", "Params.fillet_radius")

# Sketch on XZ plane
sketch12 = doc.addObject("Sketcher::SketchObject", "Sketch011")
body.addObject(sketch12)
sketch12.AttachmentSupport = (doc.XZ_Plane, [""])
sketch12.MapMode = "FlatFace"
sketch12.AttachmentOffset = App.Placement(Vector(0, 0, -8), App.Rotation())
add_polygon(sketch12, [(5, 0), (5, 400), (9.8, 400), (9.8, 0)])  # lines 0-3
add_polygon(sketch12, [(55.4, 0), (55.4, 400), (60.2, 400), (60.2, 0)])  # lines 4-7
sketch12.addConstraint([
    Sketcher.Constraint("Vertical", 0),
    Sketcher.Constraint("Horizontal", 1),
    Sketcher.Constraint("Vertical", 2),
    Sketcher.Constraint("Horizontal", 3),
    Sketcher.Constraint("Vertical", 4),
    Sketcher.Constraint("Horizontal", 5),
    Sketcher.Constraint("Vertical", 6),
    Sketcher.Constraint("Horizontal", 7),
    Sketcher.Constraint("PointOnObject", 2, 2, -1),
    Sketcher.Constraint("PointOnObject", 6, 2, -1),
    Sketcher.Constraint("Horizontal", 1, 2, 4, 2),
    Sketcher.Constraint("Equal", 3, 5),
    Sketcher.Constraint("DistanceY", 0, 1, 0, 2, 400.0),
    Sketcher.Constraint("DistanceX", 1, 1, 1, 2, 4.8),
    Sketcher.Constraint("DistanceX", -1, 1, 0, 2, 5.0),
    Sketcher.Constraint("DistanceX", -1, 1, 4, 2, 55.4),
])
sketch12.setExpression("Constraints[20]", "Params.sketch12_height")
sketch12.setExpression("Constraints[21]", "Params.sketch12_width")
pocket7 = doc.addObject("PartDesign::Pocket", "Pocket006")
body.addObject(pocket7)
pocket7.Profile = sketch12
pocket7.setExpression("Length", "Params.pocket7_length")
pocket7.Reversed = True

# Sketch on YZ plane
sketch13 = doc.addObject("Sketcher::SketchObject", "Sketch012")
body.addObject(sketch13)
sketch13.AttachmentSupport = (doc.YZ_Plane, [""])
sketch13.MapMode = "FlatFace"
sketch13.AttachmentOffset = App.Placement(Vector(0, 0, 29.51), App.Rotation())
sketch13.addGeometry(Part.Circle(Vector(16, 78.9, 0), Vector(0, 0, 1), 1.2), False)
sketch13.addConstraint([
    Sketcher.Constraint("Diameter", 0, 2.32),
    Sketcher.Constraint("DistanceX", -1, 1, 0, 3, 16.0),
    Sketcher.Constraint("DistanceY", -1, 1, 0, 3, 78.87),
])
sketch13.setExpression("Constraints[0]", "Params.sketch13_diameter")
pocket8 = doc.addObject("PartDesign::Pocket", "Pocket007")
body.addObject(pocket8)
pocket8.Profile = sketch13
pocket8.Type = "UpToFirst"
pocket8.Reversed = True

# Sketch on YZ plane
sketch14 = doc.addObject("Sketcher::SketchObject", "Sketch013")
body.addObject(sketch14)
sketch14.AttachmentSupport = (doc.YZ_Plane, [""])
sketch14.MapMode = "FlatFace"
sketch14.AttachmentOffset = App.Placement(Vector(0, 0, 29.51), App.Rotation())
sketch14.addGeometry(Part.Circle(Vector(16, 85.2, 0), Vector(0, 0, 1), 1.2), False)
sketch14.addConstraint([
    Sketcher.Constraint("Diameter", 0, 2.32),
    Sketcher.Constraint("DistanceX", -1, 1, 0, 3, 16.0),
    Sketcher.Constraint("DistanceY", -1, 1, 0, 3, 85.22),
])
sketch14.setExpression("Constraints[0]", "Params.sketch14_diameter")
pocket9 = doc.addObject("PartDesign::Pocket", "Pocket008")
body.addObject(pocket9)
pocket9.Profile = sketch14
pocket9.Type = "UpToFirst"
pocket9.Reversed = True

# Sketch on YZ plane
sketch15 = doc.addObject("Sketcher::SketchObject", "Sketch014")
body.addObject(sketch15)
sketch15.AttachmentSupport = (doc.YZ_Plane, [""])
sketch15.MapMode = "FlatFace"
sketch15.AttachmentOffset = App.Placement(Vector(0, 0, 60.2), App.Rotation())
sketch15.addGeometry(Part.Circle(Vector(16.5, 170, 0), Vector(0, 0, 1), 1.2), False)
sketch15.addConstraint([
    Sketcher.Constraint("Diameter", 0, 2.45),
    Sketcher.Constraint("DistanceY", -1, 1, 0, 3, 170.0),
    Sketcher.Constraint("DistanceX", -1, 1, 0, 3, 16.5),
])
sketch15.setExpression("Constraints[0]", "Params.sketch15_diameter")
pocket10 = doc.addObject("PartDesign::Pocket", "Pocket009")
body.addObject(pocket10)
pocket10.Profile = sketch15
pocket10.Type = "ThroughAll"
pocket10.Midplane = True

# Sketch on YZ plane
sketch16 = doc.addObject("Sketcher::SketchObject", "Sketch015")
body.addObject(sketch16)
sketch16.AttachmentSupport = (doc.YZ_Plane, [""])
sketch16.MapMode = "FlatFace"
sketch16.AttachmentOffset = App.Placement(Vector(0, 0, 60.2), App.Rotation())
sketch16.addGeometry(Part.Circle(Vector(16.5, 230, 0), Vector(0, 0, 1), 1.2), False)
sketch16.addConstraint([
    Sketcher.Constraint("Diameter", 0, 2.45),
    Sketcher.Constraint("DistanceY", -1, 1, 0, 3, 230.0),
    Sketcher.Constraint("DistanceX", -1, 1, 0, 3, 16.5),
])
sketch16.setExpression("Constraints[0]", "Params.sketch16_diameter")
pocket11 = doc.addObject("PartDesign::Pocket", "Pocket010")
body.addObject(pocket11)
pocket11.Profile = sketch16
pocket11.Type = "ThroughAll"
pocket11.Midplane = True

# Sketch on XY plane
sketch17 = doc.addObject("Sketcher::SketchObject", "Sketch016")
body.addObject(sketch17)
sketch17.AttachmentSupport = (doc.XY_Plane, [""])
sketch17.MapMode = "FlatFace"
add_polygon(sketch17, [(65.2, 23), (65.2, 8), (62.2, 8), (62.2, 23)])  # lines 0-3
add_polygon(sketch17, [(3, 23), (3, 8), (0, 8), (0, 23)])  # lines 4-7
sketch17.addConstraint([
    Sketcher.Constraint("Vertical", 0),
    Sketcher.Constraint("Horizontal", 1),
    Sketcher.Constraint("Vertical", 2),
    Sketcher.Constraint("Horizontal", 3),
    Sketcher.Constraint("Vertical", 4),
    Sketcher.Constraint("Horizontal", 5),
    Sketcher.Constraint("Vertical", 6),
    Sketcher.Constraint("Horizontal", 7),
    Sketcher.Constraint("PointOnObject", 5, 2, -2),
    Sketcher.Constraint("Horizontal", 1, 2, 4, 2),
    Sketcher.Constraint("Horizontal", 3, 2, 6, 2),
    Sketcher.Constraint("Equal", 3, 5),
    Sketcher.Constraint("DistanceX", 1, 2, 1, 1, 3.0),
    Sketcher.Constraint("DistanceY", 0, 2, 0, 1, 15.0),
    Sketcher.Constraint("DistanceY", -1, 1, 0, 2, 8.0),
    Sketcher.Constraint("DistanceX", -1, 1, 0, 2, 65.2),
])
sketch17.setExpression("Constraints[20]", "Params.sketch17_width")
sketch17.setExpression("Constraints[21]", "Params.sketch17_height")
pocket12 = doc.addObject("PartDesign::Pocket", "Pocket011")
body.addObject(pocket12)
pocket12.Profile = sketch17
pocket12.Type = "ThroughAll"
pocket12.Reversed = True
doc.recompute()

fillet2 = doc.addObject("PartDesign::Fillet", "Fillet001")
body.addObject(fillet2)
fillet2.Base = (pocket12, edges_at(pocket12, [(62.2, 8, 200)]))
fillet2.setExpression("Radius", "Params.fillet2_radius")
doc.recompute()

fillet3 = doc.addObject("PartDesign::Fillet", "Fillet002")
body.addObject(fillet3)
fillet3.Base = (fillet2, edges_at(fillet2, [(3, 8, 200)]))
fillet3.setExpression("Radius", "Params.fillet3_radius")

# Sketch on XZ plane
sketch18 = doc.addObject("Sketcher::SketchObject", "Sketch017")
body.addObject(sketch18)
sketch18.AttachmentSupport = (doc.XZ_Plane, [""])
sketch18.MapMode = "FlatFace"
sketch18.AttachmentOffset = App.Placement(Vector(0, 0, -23), App.Rotation())
add_polygon(sketch18, [(0, 0), (0, 200), (22, 200), (22, 220), (43, 220), (43, 200), (65, 200), (65, 0)])  # lines 0-7
sketch18.addConstraint([
    Sketcher.Constraint("Vertical", 0),
    Sketcher.Constraint("Horizontal", 1),
    Sketcher.Constraint("Vertical", 2),
    Sketcher.Constraint("Horizontal", 3),
    Sketcher.Constraint("Vertical", 4),
    Sketcher.Constraint("Horizontal", 5),
    Sketcher.Constraint("Vertical", 6),
    Sketcher.Constraint("Horizontal", 7),
    Sketcher.Constraint("Coincident", 7, 2, -1, 1),
    Sketcher.Constraint("Horizontal", 1, 2, 4, 2),
    Sketcher.Constraint("Equal", 1, 5),
    Sketcher.Constraint("DistanceY", 0, 1, 0, 2, 200.0),
    Sketcher.Constraint("DistanceY", 2, 1, 2, 2, 20.0),
    Sketcher.Constraint("DistanceX", 1, 1, 1, 2, 22.5),
    Sketcher.Constraint("DistanceX", 3, 1, 3, 2, 20.2),
])
sketch18.setExpression("Constraints[19]", "Params.sketch18_height")
sketch18.setExpression("Constraints[20]", "Params.sketch18_height2")
sketch18.setExpression("Constraints[21]", "Params.sketch18_width")
sketch18.setExpression("Constraints[22]", "Params.sketch18_width2")
pocket13 = doc.addObject("PartDesign::Pocket", "Pocket012")
body.addObject(pocket13)
pocket13.Profile = sketch18
pocket13.Type = "ThroughAll"
pocket13.Reversed = True

doc.recompute()
